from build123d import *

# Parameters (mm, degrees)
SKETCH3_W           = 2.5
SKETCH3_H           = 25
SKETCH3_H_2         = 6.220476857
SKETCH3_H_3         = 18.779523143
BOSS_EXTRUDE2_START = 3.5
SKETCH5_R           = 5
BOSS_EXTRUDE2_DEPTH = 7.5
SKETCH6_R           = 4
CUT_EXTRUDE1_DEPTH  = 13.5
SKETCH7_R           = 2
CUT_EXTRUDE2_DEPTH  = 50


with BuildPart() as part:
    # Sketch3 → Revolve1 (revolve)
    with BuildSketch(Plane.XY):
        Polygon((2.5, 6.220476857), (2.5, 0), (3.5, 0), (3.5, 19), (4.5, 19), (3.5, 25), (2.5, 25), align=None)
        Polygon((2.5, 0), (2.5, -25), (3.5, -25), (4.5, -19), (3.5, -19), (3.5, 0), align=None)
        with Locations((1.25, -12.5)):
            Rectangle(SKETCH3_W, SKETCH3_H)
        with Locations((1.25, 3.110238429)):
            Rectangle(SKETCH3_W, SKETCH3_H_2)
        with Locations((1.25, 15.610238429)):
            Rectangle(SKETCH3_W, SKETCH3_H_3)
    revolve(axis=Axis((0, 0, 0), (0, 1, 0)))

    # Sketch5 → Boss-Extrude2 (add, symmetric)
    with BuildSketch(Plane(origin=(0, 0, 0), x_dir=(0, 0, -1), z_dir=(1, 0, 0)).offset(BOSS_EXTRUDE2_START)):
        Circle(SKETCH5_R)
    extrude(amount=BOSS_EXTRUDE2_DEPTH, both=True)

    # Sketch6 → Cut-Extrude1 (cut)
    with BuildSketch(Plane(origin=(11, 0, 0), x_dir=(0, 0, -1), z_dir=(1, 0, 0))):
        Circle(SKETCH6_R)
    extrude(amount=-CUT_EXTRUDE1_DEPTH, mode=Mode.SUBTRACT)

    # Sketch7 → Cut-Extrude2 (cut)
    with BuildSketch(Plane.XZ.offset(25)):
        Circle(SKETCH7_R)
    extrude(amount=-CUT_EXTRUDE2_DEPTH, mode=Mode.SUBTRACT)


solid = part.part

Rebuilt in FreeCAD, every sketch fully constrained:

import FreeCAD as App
import Part
import Sketcher
Q = App.Units.Quantity


def add_polygon(sketch, points):
    """Adds a closed chain of lines whose ends are joined by coincident constraints."""
    first, n = sketch.GeometryCount, len(points)
    for a, b in zip(points, points[1:] + points[:1]):
        sketch.addGeometry(Part.LineSegment(App.Vector(*a, 0), App.Vector(*b, 0)), False)
    for i in range(n):
        sketch.addConstraint(Sketcher.Constraint("Coincident", first + i, 2, first + (i + 1) % n, 1))

doc = App.newDocument("Part")
body = doc.addObject("PartDesign::Body", "Body")

# Sketch on XY plane
sketch1 = body.newObject("Sketcher::SketchObject", "Sketch")
sketch1.AttachmentSupport = (doc.getObject("XY_Plane"), [""])
sketch1.MapMode = "FlatFace"
add_polygon(sketch1, [(3.5, 19), (4.5, 19), (3.5, 25), (2.5, 25), (0, 25), (0, -25), (3.5, -25), (4.5, -19), (3.5, -19)])  # lines 0-8
sketch1.addConstraint([
    Sketcher.Constraint("Horizontal", 0),
    Sketcher.Constraint("Horizontal", 2),
    Sketcher.Constraint("Horizontal", 3),
    Sketcher.Constraint("Vertical", 4),
    Sketcher.Constraint("Horizontal", 5),
    Sketcher.Constraint("Horizontal", 7),
    Sketcher.Constraint("Vertical", 8),
    Sketcher.Constraint("Symmetric", 3, 2, 4, 2, -1, 1),
    Sketcher.Constraint("Symmetric", 0, 2, 6, 2, -1),
    Sketcher.Constraint("Vertical", 1, 2, 5, 2),
    Sketcher.Constraint("Vertical", 5, 2, 7, 2),
    Sketcher.Constraint("Equal", 0, 2),
    Sketcher.Constraint("DistanceX", 0, 1, 0, 2, Q("1 mm")),
    Sketcher.Constraint("DistanceY", 4, 2, 4, 1, Q("50 mm")),
    Sketcher.Constraint("DistanceY", 8, 1, 8, 2, Q("38 mm")),
    Sketcher.Constraint("DistanceX", 3, 2, 3, 1, Q("2.5 mm")),
])
revolution = body.newObject("PartDesign::Revolution", "Revolution")
revolution.Profile = sketch1
revolution.ReferenceAxis = (sketch1, ["V_Axis"])
revolution.Angle = 360

# Sketch on YZ plane
sketch2 = body.newObject("Sketcher::SketchObject", "Sketch001")
sketch2.AttachmentSupport = (doc.getObject("YZ_Plane"), [""])
sketch2.MapMode = "FlatFace"
sketch2.AttachmentOffset = App.Placement(App.Vector(0, 0, 3.5), App.Rotation())
sketch2.addGeometry(Part.Circle(App.Vector(0, 0, 0), App.Vector(0, 0, 1), 5), False)
sketch2.addConstraint([
    Sketcher.Constraint("Coincident", 0, 3, -1, 1),
    Sketcher.Constraint("Diameter", 0, Q("10 mm")),
])
pad1 = body.newObject("PartDesign::Pad", "Pad")
pad1.Profile = sketch2
pad1.Length = 15
pad1.Midplane = True

# Sketch on YZ plane
sketch3 = body.newObject("Sketcher::SketchObject", "Sketch002")
sketch3.AttachmentSupport = (doc.getObject("YZ_Plane"), [""])
sketch3.MapMode = "FlatFace"
sketch3.AttachmentOffset = App.Placement(App.Vector(0, 0, 11), App.Rotation())
sketch3.addGeometry(Part.Circle(App.Vector(0, 0, 0), App.Vector(0, 0, 1), 4), False)
sketch3.addConstraint([
    Sketcher.Constraint("Coincident", 0, 3, -1, 1),
    Sketcher.Constraint("Diameter", 0, Q("8 mm")),
])
pocket1 = body.newObject("PartDesign::Pocket", "Pocket")
pocket1.Profile = sketch3
pocket1.Length = 13.5

# Sketch on XZ plane
sketch4 = body.newObject("Sketcher::SketchObject", "Sketch003")
sketch4.AttachmentSupport = (doc.getObject("XZ_Plane"), [""])
sketch4.MapMode = "FlatFace"
sketch4.AttachmentOffset = App.Placement(App.Vector(0, 0, 25), App.Rotation())
sketch4.addGeometry(Part.Circle(App.Vector(0, 0, 0), App.Vector(0, 0, 1), 2), False)
sketch4.addConstraint([
    Sketcher.Constraint("Coincident", 0, 3, -1, 1),
    Sketcher.Constraint("Diameter", 0, Q("4 mm")),
])
pocket2 = body.newObject("PartDesign::Pocket", "Pocket001")
pocket2.Profile = sketch4
pocket2.Length = 50

doc.recompute()
